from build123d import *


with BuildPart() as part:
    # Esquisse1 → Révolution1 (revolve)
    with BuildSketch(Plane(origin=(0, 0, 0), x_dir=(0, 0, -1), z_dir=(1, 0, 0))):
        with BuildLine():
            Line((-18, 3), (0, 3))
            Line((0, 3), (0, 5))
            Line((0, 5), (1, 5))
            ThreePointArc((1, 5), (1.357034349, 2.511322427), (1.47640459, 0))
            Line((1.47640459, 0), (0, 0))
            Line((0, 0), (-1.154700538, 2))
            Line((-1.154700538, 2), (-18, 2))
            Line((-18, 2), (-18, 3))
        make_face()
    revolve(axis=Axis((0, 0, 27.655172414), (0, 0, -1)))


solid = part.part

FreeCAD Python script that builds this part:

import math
import FreeCAD as App
import Part
import Sketcher
Q = App.Units.Quantity

doc = App.newDocument("Part")
body = doc.addObject("PartDesign::Body", "Body")

sketch1 = doc.addObject("Sketcher::SketchObject", "Sketch")
body.addObject(sketch1)
sketch1.AttachmentSupport = (doc.YZ_Plane, [""])
sketch1.MapMode = "FlatFace"
sketch1.addGeometry(Part.LineSegment(App.Vector(3, 0, 0), App.Vector(3, 18, 0)), False)
sketch1.addGeometry(Part.LineSegment(App.Vector(3, 18, 0), App.Vector(2, 18, 0)), False)
sketch1.addGeometry(Part.LineSegment(App.Vector(2, 18, 0), App.Vector(2, 1.2, 0)), False)
sketch1.addGeometry(Part.LineSegment(App.Vector(2, 1.2, 0), App.Vector(0, 0, 0)), False)
sketch1.addGeometry(Part.LineSegment(App.Vector(0, 0, 0), App.Vector(0, -1.5, 0)), False)
sketch1.addGeometry(Part.ArcOfCircle(Part.Circle(App.Vector(0, 25, 0), App.Vector(0, 0, 1), 26.5), math.radians(-90), math.radians(-79.11)), False)
sketch1.addGeometry(Part.LineSegment(App.Vector(5, -1, 0), App.Vector(5, 0, 0)), False)
sketch1.addGeometry(Part.LineSegment(App.Vector(5, 0, 0), App.Vector(3, 0, 0)), False)
sketch1.addConstraint(Sketcher.Constraint("Coincident", 0, 2, 1, 1))
sketch1.addConstraint(Sketcher.Constraint("Coincident", 1, 2, 2, 1))
sketch1.addConstraint(Sketcher.Constraint("Coincident", 2, 2, 3, 1))
sketch1.addConstraint(Sketcher.Constraint("Coincident", 3, 2, 4, 1))
sketch1.addConstraint(Sketcher.Constraint("Coincident", 4, 2, 5, 1))
sketch1.addConstraint(Sketcher.Constraint("Coincident", 5, 2, 6, 1))
sketch1.addConstraint(Sketcher.Constraint("Coincident", 6, 2, 7, 1))
sketch1.addConstraint(Sketcher.Constraint("Coincident", 7, 2, 0, 1))
sketch1.addConstraint(Sketcher.Constraint("Vertical", 0))
sketch1.addConstraint(Sketcher.Constraint("Horizontal", 1))
sketch1.addConstraint(Sketcher.Constraint("Vertical", 2))
sketch1.addConstraint(Sketcher.Constraint("Vertical", 4))
sketch1.addConstraint(Sketcher.Constraint("Vertical", 6))
sketch1.addConstraint(Sketcher.Constraint("Horizontal", 7))
sketch1.addConstraint(Sketcher.Constraint("Coincident", 3, 2, -1, 1))
sketch1.addConstraint(Sketcher.Constraint("PointOnObject", 5, 3, -2))
sketch1.addConstraint(Sketcher.Constraint("PointOnObject", 6, 2, -1))
sketch1.addConstraint(Sketcher.Constraint("Equal", 1, 6))
sketch1.addConstraint(Sketcher.Constraint("DistanceX", 1, 2, 1, 1, Q("1 mm")))
sketch1.addConstraint(Sketcher.Constraint("DistanceX", 7, 2, 7, 1, Q("2 mm")))
sketch1.addConstraint(Sketcher.Constraint("DistanceY", 0, 1, 0, 2, Q("18 mm")))
sketch1.addConstraint(Sketcher.Constraint("Angle", 3, Q("-150 deg")))
sketch1.addConstraint(Sketcher.Constraint("DistanceY", -1, 1, 5, 3, Q("25 mm")))
sketch1.addConstraint(Sketcher.Constraint("DistanceX", -1, 1, 0, 2, Q("3 mm")))
revolution = doc.addObject("PartDesign::Revolution", "Revolution")
body.addObject(revolution)
revolution.Profile = sketch1
revolution.ReferenceAxis = (sketch1, ["V_Axis"])
revolution.Angle = 360

doc.recompute()
